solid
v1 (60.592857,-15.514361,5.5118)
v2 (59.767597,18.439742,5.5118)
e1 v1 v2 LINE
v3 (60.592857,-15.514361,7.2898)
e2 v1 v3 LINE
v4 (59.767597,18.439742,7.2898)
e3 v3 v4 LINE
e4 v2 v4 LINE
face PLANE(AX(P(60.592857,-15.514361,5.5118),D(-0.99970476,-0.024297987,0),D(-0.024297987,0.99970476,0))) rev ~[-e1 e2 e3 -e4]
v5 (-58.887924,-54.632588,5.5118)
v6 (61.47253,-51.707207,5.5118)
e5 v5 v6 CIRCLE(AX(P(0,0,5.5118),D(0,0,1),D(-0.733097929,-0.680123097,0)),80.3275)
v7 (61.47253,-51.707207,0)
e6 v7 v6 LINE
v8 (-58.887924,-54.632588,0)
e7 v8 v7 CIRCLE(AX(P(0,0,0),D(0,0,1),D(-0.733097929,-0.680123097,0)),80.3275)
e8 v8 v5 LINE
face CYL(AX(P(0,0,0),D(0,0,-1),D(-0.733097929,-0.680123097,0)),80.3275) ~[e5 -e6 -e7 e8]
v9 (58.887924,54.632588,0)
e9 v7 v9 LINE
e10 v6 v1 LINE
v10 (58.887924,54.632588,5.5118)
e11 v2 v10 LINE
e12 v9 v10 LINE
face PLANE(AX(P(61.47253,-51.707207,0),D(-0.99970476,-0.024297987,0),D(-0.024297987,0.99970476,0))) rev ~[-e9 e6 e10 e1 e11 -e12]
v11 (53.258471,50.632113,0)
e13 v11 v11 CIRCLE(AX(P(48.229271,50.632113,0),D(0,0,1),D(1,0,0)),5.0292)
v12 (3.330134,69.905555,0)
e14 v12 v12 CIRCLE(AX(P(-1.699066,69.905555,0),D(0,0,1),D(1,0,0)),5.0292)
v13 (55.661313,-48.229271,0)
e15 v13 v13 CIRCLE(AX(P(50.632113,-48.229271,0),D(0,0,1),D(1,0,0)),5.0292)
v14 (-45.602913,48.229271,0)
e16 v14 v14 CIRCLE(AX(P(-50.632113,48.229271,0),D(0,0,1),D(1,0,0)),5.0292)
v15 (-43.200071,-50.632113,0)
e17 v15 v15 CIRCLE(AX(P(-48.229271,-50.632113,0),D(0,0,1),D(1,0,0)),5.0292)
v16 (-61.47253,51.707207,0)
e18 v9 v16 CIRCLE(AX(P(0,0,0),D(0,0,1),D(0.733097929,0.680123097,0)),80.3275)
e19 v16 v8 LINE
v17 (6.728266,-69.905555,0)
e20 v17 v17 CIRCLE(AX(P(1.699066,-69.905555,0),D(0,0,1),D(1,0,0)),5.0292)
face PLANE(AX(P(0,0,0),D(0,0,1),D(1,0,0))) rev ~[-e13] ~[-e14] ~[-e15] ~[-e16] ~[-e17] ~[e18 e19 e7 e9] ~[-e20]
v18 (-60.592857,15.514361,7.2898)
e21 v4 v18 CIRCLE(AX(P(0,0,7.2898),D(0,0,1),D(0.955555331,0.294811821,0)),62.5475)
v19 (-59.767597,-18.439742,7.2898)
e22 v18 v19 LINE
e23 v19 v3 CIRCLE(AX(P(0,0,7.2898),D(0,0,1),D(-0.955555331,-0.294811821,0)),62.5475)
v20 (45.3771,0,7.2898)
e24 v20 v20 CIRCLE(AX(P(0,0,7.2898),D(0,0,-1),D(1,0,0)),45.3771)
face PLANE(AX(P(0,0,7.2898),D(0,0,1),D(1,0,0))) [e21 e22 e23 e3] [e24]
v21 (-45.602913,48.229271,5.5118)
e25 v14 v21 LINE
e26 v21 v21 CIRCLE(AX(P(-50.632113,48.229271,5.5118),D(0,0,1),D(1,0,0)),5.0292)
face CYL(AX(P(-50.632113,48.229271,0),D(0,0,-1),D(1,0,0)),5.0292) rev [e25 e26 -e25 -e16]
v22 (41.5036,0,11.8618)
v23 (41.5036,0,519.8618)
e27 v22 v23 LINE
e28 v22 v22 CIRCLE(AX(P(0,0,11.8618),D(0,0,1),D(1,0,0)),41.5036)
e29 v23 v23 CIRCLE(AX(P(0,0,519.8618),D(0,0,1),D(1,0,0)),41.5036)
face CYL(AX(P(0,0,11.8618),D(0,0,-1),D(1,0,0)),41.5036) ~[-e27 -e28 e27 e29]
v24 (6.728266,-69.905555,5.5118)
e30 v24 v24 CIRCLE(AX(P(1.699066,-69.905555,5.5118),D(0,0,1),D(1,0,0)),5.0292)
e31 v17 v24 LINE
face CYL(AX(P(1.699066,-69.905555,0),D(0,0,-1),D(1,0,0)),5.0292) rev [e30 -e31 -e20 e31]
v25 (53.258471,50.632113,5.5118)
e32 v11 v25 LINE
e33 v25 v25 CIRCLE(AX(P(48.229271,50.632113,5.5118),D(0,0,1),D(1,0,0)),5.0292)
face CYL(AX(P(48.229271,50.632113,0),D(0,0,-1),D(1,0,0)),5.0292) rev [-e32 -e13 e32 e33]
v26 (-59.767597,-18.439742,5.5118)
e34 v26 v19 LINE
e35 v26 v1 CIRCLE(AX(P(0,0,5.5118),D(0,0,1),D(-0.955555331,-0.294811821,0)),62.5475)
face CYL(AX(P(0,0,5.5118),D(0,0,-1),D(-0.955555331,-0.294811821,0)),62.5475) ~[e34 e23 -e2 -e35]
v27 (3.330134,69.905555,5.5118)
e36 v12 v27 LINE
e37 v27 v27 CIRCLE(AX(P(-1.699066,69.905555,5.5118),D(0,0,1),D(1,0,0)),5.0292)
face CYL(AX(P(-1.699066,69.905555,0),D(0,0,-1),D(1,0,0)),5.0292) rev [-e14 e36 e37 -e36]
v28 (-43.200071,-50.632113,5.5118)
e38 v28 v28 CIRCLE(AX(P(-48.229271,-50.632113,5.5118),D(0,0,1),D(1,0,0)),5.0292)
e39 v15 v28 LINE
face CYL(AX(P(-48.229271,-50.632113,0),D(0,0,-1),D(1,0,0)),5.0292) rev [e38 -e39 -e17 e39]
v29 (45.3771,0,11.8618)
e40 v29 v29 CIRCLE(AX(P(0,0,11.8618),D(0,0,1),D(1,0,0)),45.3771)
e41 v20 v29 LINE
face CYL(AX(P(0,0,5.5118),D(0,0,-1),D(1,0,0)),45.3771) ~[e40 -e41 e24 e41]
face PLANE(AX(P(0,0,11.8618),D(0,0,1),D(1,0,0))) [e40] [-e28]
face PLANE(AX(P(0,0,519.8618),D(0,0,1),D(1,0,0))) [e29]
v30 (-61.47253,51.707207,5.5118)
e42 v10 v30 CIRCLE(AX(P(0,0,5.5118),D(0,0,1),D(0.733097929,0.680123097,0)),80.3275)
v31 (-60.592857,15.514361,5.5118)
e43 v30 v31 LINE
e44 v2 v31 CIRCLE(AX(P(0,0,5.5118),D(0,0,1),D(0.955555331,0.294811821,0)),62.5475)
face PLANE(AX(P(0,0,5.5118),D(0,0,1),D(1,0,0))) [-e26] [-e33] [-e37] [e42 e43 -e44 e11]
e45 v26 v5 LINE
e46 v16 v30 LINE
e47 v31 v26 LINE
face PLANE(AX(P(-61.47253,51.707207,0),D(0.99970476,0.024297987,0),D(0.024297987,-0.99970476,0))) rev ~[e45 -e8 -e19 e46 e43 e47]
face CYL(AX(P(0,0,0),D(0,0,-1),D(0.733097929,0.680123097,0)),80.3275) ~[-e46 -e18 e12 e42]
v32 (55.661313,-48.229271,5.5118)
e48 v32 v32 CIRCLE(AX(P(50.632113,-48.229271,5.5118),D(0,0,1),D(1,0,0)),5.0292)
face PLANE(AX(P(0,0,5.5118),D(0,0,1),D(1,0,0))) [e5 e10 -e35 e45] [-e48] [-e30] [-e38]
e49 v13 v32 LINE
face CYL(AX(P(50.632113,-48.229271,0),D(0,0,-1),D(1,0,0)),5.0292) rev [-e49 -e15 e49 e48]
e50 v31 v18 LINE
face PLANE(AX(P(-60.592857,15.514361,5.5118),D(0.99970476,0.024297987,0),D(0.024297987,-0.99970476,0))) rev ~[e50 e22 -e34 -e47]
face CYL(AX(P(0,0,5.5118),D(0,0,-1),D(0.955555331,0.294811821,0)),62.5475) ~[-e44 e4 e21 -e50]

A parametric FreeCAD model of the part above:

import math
import FreeCAD as App
import Part
import Sketcher
from FreeCAD import Vector
Q = App.Units.Quantity

doc = App.newDocument("Part")
params = doc.addObject("Spreadsheet::Sheet", "Params")
for row, (alias, value) in enumerate([
    ("sketch1_diameter", "0.396 in"),
    ("pad1_length", "0.217 in"),
    ("sketch2_diameter", "3.573 in"),
    ("pad2_length", "0.25 in"),
    ("pad3_length", "0.07 in"),
    ("sketch4_diameter", "3.268 in"),
    ("pad4_length", "20 in"),
], start=1):
    params.set(f"A{row}", alias)
    params.set(f"B{row}", "=" + value)
    params.setAlias(f"B{row}", alias)

body = doc.addObject("PartDesign::Body", "Body")

# Sketch on XY plane
sketch1 = doc.addObject("Sketcher::SketchObject", "Sketch")
body.addObject(sketch1)
sketch1.AttachmentSupport = (doc.XY_Plane, [""])
sketch1.MapMode = "FlatFace"
sketch1.addGeometry(Part.LineSegment(Vector(61, -52, 0), Vector(59, 55, 0)), False)
sketch1.addGeometry(Part.ArcOfCircle(Part.Circle(Vector(0, 0, 0), Vector(0, 0, 1), 80), math.radians(43), math.radians(140)), False)
sketch1.addGeometry(Part.LineSegment(Vector(-61, 52, 0), Vector(-59, -55, 0)), False)
sketch1.addGeometry(Part.ArcOfCircle(Part.Circle(Vector(0, 0, 0), Vector(0, 0, 1), 80), math.radians(-137), math.radians(-40)), False)
sketch1.addGeometry(Part.Circle(Vector(-48, -51, 0), Vector(0, 0, 1), 5), False)
sketch1.addGeometry(Part.Circle(Vector(2, -70, 0), Vector(0, 0, 1), 5), False)
sketch1.addGeometry(Part.Circle(Vector(51, -48, 0), Vector(0, 0, 1), 5), False)
sketch1.addGeometry(Part.Circle(Vector(-51, 48, 0), Vector(0, 0, 1), 5), False)
sketch1.addGeometry(Part.Circle(Vector(-2, 70, 0), Vector(0, 0, 1), 5), False)
sketch1.addGeometry(Part.Circle(Vector(48, 51, 0), Vector(0, 0, 1), 5), False)
sketch1.addConstraint(Sketcher.Constraint("Coincident", 0, 2, 1, 1))
sketch1.addConstraint(Sketcher.Constraint("Coincident", 1, 2, 2, 1))
sketch1.addConstraint(Sketcher.Constraint("Coincident", 2, 2, 3, 1))
sketch1.addConstraint(Sketcher.Constraint("Coincident", 3, 2, 0, 1))
sketch1.addConstraint(Sketcher.Constraint("Coincident", 1, 3, -1, 1))
sketch1.addConstraint(Sketcher.Constraint("Coincident", 3, 3, -1, 1))
sketch1.addConstraint(Sketcher.Constraint("Equal", 1, 3))
sketch1.addConstraint(Sketcher.Constraint("Equal", 4, 5))
sketch1.addConstraint(Sketcher.Constraint("Equal", 5, 6))
sketch1.addConstraint(Sketcher.Constraint("Equal", 6, 7))
sketch1.addConstraint(Sketcher.Constraint("Equal", 7, 8))
sketch1.addConstraint(Sketcher.Constraint("Equal", 8, 9))
sketch1.addConstraint(Sketcher.Constraint("Symmetric", 6, 3, 7, 3, -1, 1))
sketch1.addConstraint(Sketcher.Constraint("Symmetric", 5, 3, 8, 3, -1, 1))
sketch1.addConstraint(Sketcher.Constraint("Symmetric", 4, 3, 9, 3, -1, 1))
sketch1.addConstraint(Sketcher.Constraint("Parallel", 0, 2))
sketch1.addConstraint(Sketcher.Constraint("Equal", 0, 2))
sketch1.addConstraint(Sketcher.Constraint("Diameter", 4, Q("0.396 in")))
sketch1.addConstraint(Sketcher.Constraint("Radius", 1, Q("3.1625 in")))
sketch1.addConstraint(Sketcher.Constraint("DistanceY", 4, 3, 6, 3, Q("0.0946001 in")))
sketch1.addConstraint(Sketcher.Constraint("DistanceX", 7, 3, 4, 3, Q("0.0946001 in")))
sketch1.addConstraint(Sketcher.Constraint("Distance", 0, Q("106.3712 mm")))
sketch1.addConstraint(Sketcher.Constraint("DistanceX", 4, 3, -1, 1, Q("48.229271 mm")))
sketch1.addConstraint(Sketcher.Constraint("DistanceY", 6, 3, -1, 1, Q("48.229271 mm")))
sketch1.addConstraint(Sketcher.Constraint("DistanceX", 1, 2, -1, 1, Q("61.47253 mm")))
sketch1.addConstraint(Sketcher.Constraint("DistanceX", 7, 3, 5, 3, Q("52.331179 mm")))
sketch1.addConstraint(Sketcher.Constraint("DistanceY", 5, 3, -1, 1, Q("69.905555 mm")))
sketch1.setExpression("Constraints[17]", "Params.sketch1_diameter")
pad1 = doc.addObject("PartDesign::Pad", "Pad")
body.addObject(pad1)
pad1.Profile = sketch1
pad1.setExpression("Length", "Params.pad1_length")

# Sketch on XY plane
sketch2 = doc.addObject("Sketcher::SketchObject", "Sketch001")
body.addObject(sketch2)
sketch2.AttachmentSupport = (doc.XY_Plane, [""])
sketch2.MapMode = "FlatFace"
sketch2.AttachmentOffset = App.Placement(Vector(0, 0, 0.217 * 25.4), App.Rotation())
sketch2.addGeometry(Part.Circle(Vector(0, 0, 0), Vector(0, 0, 1), 45), False)
sketch2.addConstraint(Sketcher.Constraint("Coincident", 0, 3, -1, 1))
sketch2.addConstraint(Sketcher.Constraint("Diameter", 0, Q("3.573 in")))
sketch2.setExpression("Constraints[1]", "Params.sketch2_diameter")
pad2 = doc.addObject("PartDesign::Pad", "Pad001")
body.addObject(pad2)
pad2.Profile = sketch2
pad2.setExpression("Length", "Params.pad2_length")

# Sketch on XY plane
sketch3 = doc.addObject("Sketcher::SketchObject", "Sketch002")
body.addObject(sketch3)
sketch3.AttachmentSupport = (doc.XY_Plane, [""])
sketch3.MapMode = "FlatFace"
sketch3.AttachmentOffset = App.Placement(Vector(0, 0, 0.217 * 25.4), App.Rotation())
sketch3.addGeometry(Part.LineSegment(Vector(-61, 16, 0), Vector(-60, -18, 0)), False)
sketch3.addGeometry(Part.ArcOfCircle(Part.Circle(Vector(0, 0, 0), Vector(0, 0, 1), 63), math.radians(-163), math.radians(-14)), False)
sketch3.addGeometry(Part.LineSegment(Vector(61, -16, 0), Vector(60, 18, 0)), False)
sketch3.addGeometry(Part.ArcOfCircle(Part.Circle(Vector(0, 0, 0), Vector(0, 0, 1), 63), math.radians(17), math.radians(166)), False)
sketch3.addConstraint(Sketcher.Constraint("Coincident", 0, 2, 1, 1))
sketch3.addConstraint(Sketcher.Constraint("Coincident", 1, 2, 2, 1))
sketch3.addConstraint(Sketcher.Constraint("Coincident", 2, 2, 3, 1))
sketch3.addConstraint(Sketcher.Constraint("Coincident", 3, 2, 0, 1))
sketch3.addConstraint(Sketcher.Constraint("Coincident", 1, 3, -1, 1))
sketch3.addConstraint(Sketcher.Constraint("Coincident", 3, 3, -1, 1))
sketch3.addConstraint(Sketcher.Constraint("Equal", 1, 3))
sketch3.addConstraint(Sketcher.Constraint("Parallel", 0, 2))
sketch3.addConstraint(Sketcher.Constraint("Equal", 0, 2))
sketch3.addConstraint(Sketcher.Constraint("Radius", 1, Q("2.4625 in")))
sketch3.addConstraint(Sketcher.Constraint("Distance", 0, Q("33.964131 mm")))
sketch3.addConstraint(Sketcher.Constraint("DistanceY", 0, 2, -1, 1, Q("18.439742 mm")))
pad3 = doc.addObject("PartDesign::Pad", "Pad002")
body.addObject(pad3)
pad3.Profile = sketch3
pad3.setExpression("Length", "Params.pad3_length")

# Sketch on XY plane
sketch4 = doc.addObject("Sketcher::SketchObject", "Sketch003")
body.addObject(sketch4)
sketch4.AttachmentSupport = (doc.XY_Plane, [""])
sketch4.MapMode = "FlatFace"
sketch4.AttachmentOffset = App.Placement(Vector(0, 0, 0.467 * 25.4), App.Rotation())
sketch4.addGeometry(Part.Circle(Vector(0, 0, 0), Vector(0, 0, 1), 42), False)
sketch4.addConstraint(Sketcher.Constraint("Coincident", 0, 3, -1, 1))
sketch4.addConstraint(Sketcher.Constraint("Diameter", 0, Q("3.268 in")))
sketch4.setExpression("Constraints[1]", "Params.sketch4_diameter")
pad4 = doc.addObject("PartDesign::Pad", "Pad003")
body.addObject(pad4)
pad4.Profile = sketch4
pad4.setExpression("Length", "Params.pad4_length")

doc.recompute()
